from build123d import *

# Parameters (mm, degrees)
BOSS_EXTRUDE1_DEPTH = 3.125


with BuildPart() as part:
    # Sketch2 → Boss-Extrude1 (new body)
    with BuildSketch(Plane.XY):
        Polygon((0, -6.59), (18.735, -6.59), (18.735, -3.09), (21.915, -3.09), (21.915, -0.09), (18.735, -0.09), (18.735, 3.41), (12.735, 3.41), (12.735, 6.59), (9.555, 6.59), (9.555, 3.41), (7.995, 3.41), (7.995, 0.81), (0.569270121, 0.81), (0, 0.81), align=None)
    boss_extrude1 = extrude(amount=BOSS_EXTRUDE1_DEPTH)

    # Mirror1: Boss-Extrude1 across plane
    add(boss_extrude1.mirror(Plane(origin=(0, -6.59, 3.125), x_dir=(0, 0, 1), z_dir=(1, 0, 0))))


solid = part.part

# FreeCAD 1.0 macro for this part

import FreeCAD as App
import Part
import Sketcher

V = App.Vector
Q = App.Units.Quantity


def add_polygon(sketch, points):
    """Adds a closed chain of lines whose ends are joined by coincident constraints."""
    first, n = sketch.GeometryCount, len(points)
    for a, b in zip(points, points[1:] + points[:1]):
        sketch.addGeometry(Part.LineSegment(App.Vector(*a, 0), App.Vector(*b, 0)), False)
    for i in range(n):
        sketch.addConstraint(Sketcher.Constraint("Coincident", first + i, 2, first + (i + 1) % n, 1))

doc = App.newDocument("Part")
body = doc.addObject("PartDesign::Body", "Body")

sketch1 = body.newObject("Sketcher::SketchObject", "Sketch")
sketch1.AttachmentSupport = (doc.getObject("XY_Plane"), [""])
sketch1.MapMode = "FlatFace"
add_polygon(sketch1, [(0, -6.6), (18.7, -6.6), (18.7, -3.1), (21.9, -3.1), (21.9, -0.1), (18.7, -0.1), (18.7, 3.4), (12.7, 3.4), (12.7, 6.6), (9.6, 6.6), (9.6, 3.4), (8, 3.4), (8, 0.8), (0, 0.8)])
sketch1.addConstraint([
    Sketcher.Constraint("Horizontal", 0),
    Sketcher.Constraint("Vertical", 1),
    Sketcher.Constraint("Horizontal", 2),
    Sketcher.Constraint("Vertical", 3),
    Sketcher.Constraint("Horizontal", 4),
    Sketcher.Constraint("Vertical", 5),
    Sketcher.Constraint("Horizontal", 6),
    Sketcher.Constraint("Vertical", 7),
    Sketcher.Constraint("Horizontal", 8),
    Sketcher.Constraint("Vertical", 9),
    Sketcher.Constraint("Horizontal", 10),
    Sketcher.Constraint("Vertical", 11),
    Sketcher.Constraint("Horizontal", 12),
    Sketcher.Constraint("Vertical", 13),
    Sketcher.Constraint("PointOnObject", 12, 2, -2),
    Sketcher.Constraint("Horizontal", 6, 2, 9, 2),
    Sketcher.Constraint("Vertical", 1, 2, 4, 2),
    Sketcher.Constraint("Equal", 4, 8),
    Sketcher.Constraint("Equal", 1, 5),
    Sketcher.Constraint("Equal", 8, 7),
    Sketcher.Constraint("DistanceX", 6, 2, 6, 1, Q("6 mm")),
    Sketcher.Constraint("DistanceY", 3, 1, 3, 2, Q("3 mm")),
    Sketcher.Constraint("DistanceY", 1, 1, 1, 2, Q("3.5 mm")),
    Sketcher.Constraint("DistanceY", 11, 2, 11, 1, Q("2.6 mm")),
    Sketcher.Constraint("DistanceX", 2, 1, 2, 2, Q("3.18 mm")),
    Sketcher.Constraint("DistanceX", 10, 2, 10, 1, Q("1.56 mm")),
    Sketcher.Constraint("DistanceX", 0, 1, 0, 2, Q("18.735 mm")),
    Sketcher.Constraint("DistanceY", 0, 2, -1, 1, Q("6.59 mm")),
])
pad1 = body.newObject("PartDesign::Pad", "Pad")
pad1.Profile = sketch1
pad1.Length = 3.125
doc.recompute()

mirrored = body.newObject("PartDesign::Mirrored", "Mirrored")
mirrored.Originals = [pad1]
mirrored.MirrorPlane = (doc.getObject("YZ_Plane"), [""])
body.Tip = mirrored

doc.recompute()
